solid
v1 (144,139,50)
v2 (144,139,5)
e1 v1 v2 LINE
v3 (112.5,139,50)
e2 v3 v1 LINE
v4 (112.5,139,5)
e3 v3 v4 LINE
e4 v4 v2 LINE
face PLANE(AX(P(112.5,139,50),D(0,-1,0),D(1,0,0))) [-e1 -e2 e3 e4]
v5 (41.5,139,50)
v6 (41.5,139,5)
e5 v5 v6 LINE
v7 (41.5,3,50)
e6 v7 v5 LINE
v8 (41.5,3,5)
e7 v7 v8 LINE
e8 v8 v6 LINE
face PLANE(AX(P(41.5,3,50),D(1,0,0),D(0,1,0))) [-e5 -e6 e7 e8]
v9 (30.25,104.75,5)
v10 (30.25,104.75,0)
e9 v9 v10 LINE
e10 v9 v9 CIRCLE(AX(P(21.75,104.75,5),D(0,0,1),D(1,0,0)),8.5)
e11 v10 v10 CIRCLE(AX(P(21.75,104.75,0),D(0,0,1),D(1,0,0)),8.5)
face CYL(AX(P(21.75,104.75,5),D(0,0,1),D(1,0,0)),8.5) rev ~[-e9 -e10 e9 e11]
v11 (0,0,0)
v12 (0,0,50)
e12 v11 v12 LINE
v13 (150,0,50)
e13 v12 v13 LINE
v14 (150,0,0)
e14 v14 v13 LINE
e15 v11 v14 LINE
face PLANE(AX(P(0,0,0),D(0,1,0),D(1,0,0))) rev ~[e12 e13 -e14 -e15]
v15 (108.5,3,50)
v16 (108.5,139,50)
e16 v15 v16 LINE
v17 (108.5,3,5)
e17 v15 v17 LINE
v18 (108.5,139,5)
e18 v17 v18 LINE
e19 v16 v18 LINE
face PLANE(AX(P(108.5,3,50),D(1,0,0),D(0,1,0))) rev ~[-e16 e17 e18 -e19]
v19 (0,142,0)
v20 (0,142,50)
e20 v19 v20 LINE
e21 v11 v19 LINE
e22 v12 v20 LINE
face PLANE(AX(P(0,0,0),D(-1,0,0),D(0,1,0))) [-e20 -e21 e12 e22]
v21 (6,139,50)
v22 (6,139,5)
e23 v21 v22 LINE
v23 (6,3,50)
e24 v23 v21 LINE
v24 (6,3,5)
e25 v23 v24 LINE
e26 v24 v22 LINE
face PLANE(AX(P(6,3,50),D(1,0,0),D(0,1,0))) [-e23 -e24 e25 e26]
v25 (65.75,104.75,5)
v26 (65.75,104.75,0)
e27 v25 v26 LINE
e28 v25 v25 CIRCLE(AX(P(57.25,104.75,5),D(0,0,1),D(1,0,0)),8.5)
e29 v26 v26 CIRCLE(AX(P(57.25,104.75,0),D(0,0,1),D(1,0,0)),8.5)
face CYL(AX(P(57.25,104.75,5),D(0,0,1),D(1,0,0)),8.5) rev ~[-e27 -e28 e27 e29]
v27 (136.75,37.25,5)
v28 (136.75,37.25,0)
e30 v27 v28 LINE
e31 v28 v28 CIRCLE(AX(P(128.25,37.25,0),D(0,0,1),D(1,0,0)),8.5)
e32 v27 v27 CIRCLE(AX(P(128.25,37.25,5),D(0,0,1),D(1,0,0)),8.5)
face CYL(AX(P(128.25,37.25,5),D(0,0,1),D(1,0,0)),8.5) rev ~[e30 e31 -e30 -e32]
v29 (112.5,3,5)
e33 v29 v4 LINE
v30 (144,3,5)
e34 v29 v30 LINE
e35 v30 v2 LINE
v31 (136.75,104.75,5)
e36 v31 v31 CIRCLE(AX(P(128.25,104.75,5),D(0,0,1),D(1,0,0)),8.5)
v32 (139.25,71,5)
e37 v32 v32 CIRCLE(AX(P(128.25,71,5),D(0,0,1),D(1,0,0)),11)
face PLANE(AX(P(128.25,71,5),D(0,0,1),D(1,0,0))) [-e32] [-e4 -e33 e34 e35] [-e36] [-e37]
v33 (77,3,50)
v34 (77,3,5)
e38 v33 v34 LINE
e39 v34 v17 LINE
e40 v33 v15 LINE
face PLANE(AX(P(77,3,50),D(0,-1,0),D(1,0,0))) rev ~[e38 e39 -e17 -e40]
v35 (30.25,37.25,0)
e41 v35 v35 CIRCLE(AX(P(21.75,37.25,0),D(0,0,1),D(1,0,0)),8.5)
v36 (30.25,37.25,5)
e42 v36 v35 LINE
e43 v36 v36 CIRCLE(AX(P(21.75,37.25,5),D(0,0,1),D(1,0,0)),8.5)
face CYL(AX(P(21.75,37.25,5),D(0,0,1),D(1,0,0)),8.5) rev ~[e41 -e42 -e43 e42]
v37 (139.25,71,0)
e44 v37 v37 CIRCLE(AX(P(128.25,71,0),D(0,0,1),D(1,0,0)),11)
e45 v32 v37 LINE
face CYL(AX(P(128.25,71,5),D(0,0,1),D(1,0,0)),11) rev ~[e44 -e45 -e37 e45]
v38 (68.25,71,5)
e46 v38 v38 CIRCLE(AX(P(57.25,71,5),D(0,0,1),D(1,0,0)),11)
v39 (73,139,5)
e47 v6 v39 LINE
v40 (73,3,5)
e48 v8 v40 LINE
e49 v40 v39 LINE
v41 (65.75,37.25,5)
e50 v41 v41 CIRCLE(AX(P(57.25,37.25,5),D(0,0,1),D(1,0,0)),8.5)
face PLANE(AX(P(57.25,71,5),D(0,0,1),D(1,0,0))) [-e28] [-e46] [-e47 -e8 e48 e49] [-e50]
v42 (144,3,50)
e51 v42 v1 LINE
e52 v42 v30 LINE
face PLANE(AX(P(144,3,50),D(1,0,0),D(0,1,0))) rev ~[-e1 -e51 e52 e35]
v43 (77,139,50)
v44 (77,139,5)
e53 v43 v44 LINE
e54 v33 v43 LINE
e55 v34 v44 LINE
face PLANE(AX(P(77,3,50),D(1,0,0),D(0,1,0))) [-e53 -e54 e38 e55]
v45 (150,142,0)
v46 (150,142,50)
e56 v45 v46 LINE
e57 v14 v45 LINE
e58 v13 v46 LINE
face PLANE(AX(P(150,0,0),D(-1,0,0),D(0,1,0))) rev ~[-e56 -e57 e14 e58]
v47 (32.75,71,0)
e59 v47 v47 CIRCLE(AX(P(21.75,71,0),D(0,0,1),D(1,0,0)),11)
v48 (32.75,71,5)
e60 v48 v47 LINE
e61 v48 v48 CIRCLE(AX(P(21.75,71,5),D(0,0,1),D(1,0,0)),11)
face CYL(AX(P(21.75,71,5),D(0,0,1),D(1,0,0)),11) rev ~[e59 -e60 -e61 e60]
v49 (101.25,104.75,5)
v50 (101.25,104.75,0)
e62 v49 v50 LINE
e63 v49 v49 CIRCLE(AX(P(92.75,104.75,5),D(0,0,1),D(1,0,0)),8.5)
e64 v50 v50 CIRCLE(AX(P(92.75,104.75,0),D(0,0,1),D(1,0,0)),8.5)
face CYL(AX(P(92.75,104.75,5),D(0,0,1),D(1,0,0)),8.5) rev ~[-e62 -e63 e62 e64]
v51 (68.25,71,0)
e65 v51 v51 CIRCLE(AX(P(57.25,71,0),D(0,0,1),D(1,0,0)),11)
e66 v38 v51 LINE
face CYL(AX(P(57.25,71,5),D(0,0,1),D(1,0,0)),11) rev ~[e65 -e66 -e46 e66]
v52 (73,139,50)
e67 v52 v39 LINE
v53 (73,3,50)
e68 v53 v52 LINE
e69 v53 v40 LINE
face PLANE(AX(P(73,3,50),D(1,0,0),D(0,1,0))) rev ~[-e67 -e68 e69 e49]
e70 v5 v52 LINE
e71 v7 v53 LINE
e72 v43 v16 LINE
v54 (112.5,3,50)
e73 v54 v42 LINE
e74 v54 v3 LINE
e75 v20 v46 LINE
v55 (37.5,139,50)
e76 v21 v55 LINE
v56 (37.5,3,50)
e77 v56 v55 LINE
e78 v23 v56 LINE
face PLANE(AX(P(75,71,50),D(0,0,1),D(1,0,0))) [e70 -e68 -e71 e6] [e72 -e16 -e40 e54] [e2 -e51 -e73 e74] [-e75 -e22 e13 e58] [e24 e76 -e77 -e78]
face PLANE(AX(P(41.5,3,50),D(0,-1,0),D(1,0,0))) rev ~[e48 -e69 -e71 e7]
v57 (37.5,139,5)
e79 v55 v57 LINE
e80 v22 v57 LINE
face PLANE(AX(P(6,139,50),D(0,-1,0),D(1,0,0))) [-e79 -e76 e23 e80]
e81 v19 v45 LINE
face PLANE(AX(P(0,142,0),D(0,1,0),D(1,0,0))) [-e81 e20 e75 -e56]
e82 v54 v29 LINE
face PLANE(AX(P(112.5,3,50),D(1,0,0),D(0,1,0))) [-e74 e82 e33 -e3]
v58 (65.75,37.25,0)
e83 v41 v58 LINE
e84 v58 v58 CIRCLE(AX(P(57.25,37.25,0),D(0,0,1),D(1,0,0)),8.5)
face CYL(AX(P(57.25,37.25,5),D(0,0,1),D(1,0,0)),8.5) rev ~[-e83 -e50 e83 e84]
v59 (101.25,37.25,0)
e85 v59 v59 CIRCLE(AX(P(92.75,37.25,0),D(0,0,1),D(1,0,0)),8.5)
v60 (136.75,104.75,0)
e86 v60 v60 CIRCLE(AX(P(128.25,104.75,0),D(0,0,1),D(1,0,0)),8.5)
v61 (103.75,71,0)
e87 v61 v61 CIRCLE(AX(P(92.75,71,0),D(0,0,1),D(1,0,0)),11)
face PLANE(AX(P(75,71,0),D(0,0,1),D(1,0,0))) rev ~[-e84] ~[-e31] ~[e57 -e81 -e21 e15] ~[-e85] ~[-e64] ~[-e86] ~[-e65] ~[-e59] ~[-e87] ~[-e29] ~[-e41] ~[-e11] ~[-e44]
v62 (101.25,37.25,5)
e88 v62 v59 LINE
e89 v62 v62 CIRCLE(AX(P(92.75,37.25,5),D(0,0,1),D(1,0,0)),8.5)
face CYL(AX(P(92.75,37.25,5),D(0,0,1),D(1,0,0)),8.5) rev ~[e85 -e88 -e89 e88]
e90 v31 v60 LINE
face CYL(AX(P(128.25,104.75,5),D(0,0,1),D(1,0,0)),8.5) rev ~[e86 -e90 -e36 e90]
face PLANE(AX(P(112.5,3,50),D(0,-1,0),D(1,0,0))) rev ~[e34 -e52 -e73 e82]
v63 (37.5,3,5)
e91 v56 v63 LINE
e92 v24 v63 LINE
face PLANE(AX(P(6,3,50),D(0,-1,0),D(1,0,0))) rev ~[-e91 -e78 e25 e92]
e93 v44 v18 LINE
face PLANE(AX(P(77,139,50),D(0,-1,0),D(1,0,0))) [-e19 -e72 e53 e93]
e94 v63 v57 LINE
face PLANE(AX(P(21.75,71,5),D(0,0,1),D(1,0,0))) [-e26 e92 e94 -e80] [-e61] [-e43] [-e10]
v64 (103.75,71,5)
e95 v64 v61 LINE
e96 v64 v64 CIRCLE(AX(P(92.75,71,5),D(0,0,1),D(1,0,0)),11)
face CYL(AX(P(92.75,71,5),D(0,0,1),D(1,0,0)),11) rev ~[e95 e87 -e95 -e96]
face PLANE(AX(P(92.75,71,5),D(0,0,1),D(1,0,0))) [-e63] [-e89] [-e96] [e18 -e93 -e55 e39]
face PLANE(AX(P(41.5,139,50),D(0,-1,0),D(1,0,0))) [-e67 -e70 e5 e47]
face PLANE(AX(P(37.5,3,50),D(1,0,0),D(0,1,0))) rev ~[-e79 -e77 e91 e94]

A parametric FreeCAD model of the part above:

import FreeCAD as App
import Part
import Sketcher

V = App.Vector


def add_polygon(sketch, points):
    """Adds a closed chain of lines whose ends are joined by coincident constraints."""
    first, n = sketch.GeometryCount, len(points)
    for a, b in zip(points, points[1:] + points[:1]):
        sketch.addGeometry(Part.LineSegment(App.Vector(*a, 0), App.Vector(*b, 0)), False)
    for i in range(n):
        sketch.addConstraint(Sketcher.Constraint("Coincident", first + i, 2, first + (i + 1) % n, 1))

doc = App.newDocument("Part")
body = doc.addObject("PartDesign::Body", "Body")

# Sketch on XY plane
sketch1 = body.newObject("Sketcher::SketchObject", "Sketch")
sketch1.AttachmentSupport = (doc.getObject("XY_Plane"), [""])
sketch1.MapMode = "FlatFace"
add_polygon(sketch1, [(0, 142), (0, 0), (150, 0), (150, 142)])  # lines 0-3
sketch1.addConstraint(Sketcher.Constraint("Vertical", 0))
sketch1.addConstraint(Sketcher.Constraint("Horizontal", 1))
sketch1.addConstraint(Sketcher.Constraint("Vertical", 2))
sketch1.addConstraint(Sketcher.Constraint("Horizontal", 3))
sketch1.addConstraint(Sketcher.Constraint("Coincident", 0, 2, -1, 1))
sketch1.addConstraint(Sketcher.Constraint("DistanceX", 1, 1, 1, 2, 150.0))
sketch1.addConstraint(Sketcher.Constraint("DistanceY", 0, 2, 0, 1, 142.0))
pad1 = body.newObject("PartDesign::Pad", "Pad")
pad1.Profile = sketch1
pad1.Length = 50

# Sketch on XY plane
sketch2 = body.newObject("Sketcher::SketchObject", "Sketch001")
sketch2.AttachmentSupport = (doc.getObject("XY_Plane"), [""])
sketch2.MapMode = "FlatFace"
sketch2.AttachmentOffset = App.Placement(V(0, 0, 50), App.Rotation())
add_polygon(sketch2, [(6, 139), (6, 3), (38, 3), (38, 139)])  # lines 0-3
add_polygon(sketch2, [(42, 139), (42, 3), (73, 3), (73, 139)])  # lines 4-7
add_polygon(sketch2, [(77, 139), (77, 3), (108, 3), (108, 139)])  # lines 8-11
add_polygon(sketch2, [(112, 139), (112, 3), (144, 3), (144, 139)])  # lines 12-15
sketch2.addConstraint(Sketcher.Constraint("Vertical", 0))
sketch2.addConstraint(Sketcher.Constraint("Horizontal", 1))
sketch2.addConstraint(Sketcher.Constraint("Vertical", 2))
sketch2.addConstraint(Sketcher.Constraint("Horizontal", 3))
sketch2.addConstraint(Sketcher.Constraint("Vertical", 4))
sketch2.addConstraint(Sketcher.Constraint("Horizontal", 5))
sketch2.addConstraint(Sketcher.Constraint("Vertical", 6))
sketch2.addConstraint(Sketcher.Constraint("Horizontal", 7))
sketch2.addConstraint(Sketcher.Constraint("Vertical", 8))
sketch2.addConstraint(Sketcher.Constraint("Horizontal", 9))
sketch2.addConstraint(Sketcher.Constraint("Vertical", 10))
sketch2.addConstraint(Sketcher.Constraint("Horizontal", 11))
sketch2.addConstraint(Sketcher.Constraint("Vertical", 12))
sketch2.addConstraint(Sketcher.Constraint("Horizontal", 13))
sketch2.addConstraint(Sketcher.Constraint("Vertical", 14))
sketch2.addConstraint(Sketcher.Constraint("Horizontal", 15))
sketch2.addConstraint(Sketcher.Constraint("Horizontal", 1, 2, 4, 2))
sketch2.addConstraint(Sketcher.Constraint("Horizontal", 3, 2, 6, 2))
sketch2.addConstraint(Sketcher.Constraint("Horizontal", 5, 2, 8, 2))
sketch2.addConstraint(Sketcher.Constraint("Horizontal", 7, 2, 10, 2))
sketch2.addConstraint(Sketcher.Constraint("Horizontal", 9, 2, 12, 2))
sketch2.addConstraint(Sketcher.Constraint("Horizontal", 11, 2, 14, 2))
sketch2.addConstraint(Sketcher.Constraint("Equal", 3, 5))
sketch2.addConstraint(Sketcher.Constraint("Equal", 7, 9))
sketch2.addConstraint(Sketcher.Constraint("Equal", 11, 13))
sketch2.addConstraint(Sketcher.Constraint("DistanceY", 0, 2, 0, 1, 136.0))
sketch2.addConstraint(Sketcher.Constraint("DistanceX", 1, 1, 1, 2, 31.5))
sketch2.addConstraint(Sketcher.Constraint("DistanceX", -1, 1, 0, 2, 6.0))
sketch2.addConstraint(Sketcher.Constraint("DistanceY", -1, 1, 0, 2, 3.0))
sketch2.addConstraint(Sketcher.Constraint("DistanceX", -1, 1, 5, 2, 73.0))
sketch2.addConstraint(Sketcher.Constraint("DistanceX", -1, 1, 8, 2, 77.0))
sketch2.addConstraint(Sketcher.Constraint("DistanceX", -1, 1, 13, 2, 144.0))
pocket1 = body.newObject("PartDesign::Pocket", "Pocket")
pocket1.Profile = sketch2
pocket1.Length = 45

# Sketch on XY plane
sketch3 = body.newObject("Sketcher::SketchObject", "Sketch002")
sketch3.AttachmentSupport = (doc.getObject("XY_Plane"), [""])
sketch3.MapMode = "FlatFace"
sketch3.AttachmentOffset = App.Placement(V(0, 0, 5), App.Rotation())
sketch3.addGeometry(Part.Circle(V(22, 37, 0), V(0, 0, 1), 8), False)
sketch3.addGeometry(Part.Circle(V(22, 71, 0), V(0, 0, 1), 11), False)
sketch3.addGeometry(Part.Circle(V(22, 105, 0), V(0, 0, 1), 8), False)
sketch3.addGeometry(Part.Circle(V(57, 37, 0), V(0, 0, 1), 8), False)
sketch3.addGeometry(Part.Circle(V(57, 71, 0), V(0, 0, 1), 11), False)
sketch3.addGeometry(Part.Circle(V(57, 105, 0), V(0, 0, 1), 8), False)
sketch3.addGeometry(Part.Circle(V(93, 37, 0), V(0, 0, 1), 8), False)
sketch3.addGeometry(Part.Circle(V(93, 71, 0), V(0, 0, 1), 11), False)
sketch3.addGeometry(Part.Circle(V(93, 105, 0), V(0, 0, 1), 8), False)
sketch3.addGeometry(Part.Circle(V(128, 37, 0), V(0, 0, 1), 8), False)
sketch3.addGeometry(Part.Circle(V(128, 71, 0), V(0, 0, 1), 11), False)
sketch3.addGeometry(Part.Circle(V(128, 105, 0), V(0, 0, 1), 8), False)
sketch3.addConstraint(Sketcher.Constraint("Equal", 0, 2))
sketch3.addConstraint(Sketcher.Constraint("Equal", 2, 3))
sketch3.addConstraint(Sketcher.Constraint("Equal", 1, 4))
sketch3.addConstraint(Sketcher.Constraint("Equal", 3, 5))
sketch3.addConstraint(Sketcher.Constraint("Equal", 5, 6))
sketch3.addConstraint(Sketcher.Constraint("Equal", 4, 7))
sketch3.addConstraint(Sketcher.Constraint("Equal", 6, 8))
sketch3.addConstraint(Sketcher.Constraint("Equal", 8, 9))
sketch3.addConstraint(Sketcher.Constraint("Equal", 7, 10))
sketch3.addConstraint(Sketcher.Constraint("Equal", 9, 11))
sketch3.addConstraint(Sketcher.Constraint("Horizontal", 0, 3, 3, 3))
sketch3.addConstraint(Sketcher.Constraint("Horizontal", 1, 3, 4, 3))
sketch3.addConstraint(Sketcher.Constraint("Horizontal", 2, 3, 5, 3))
sketch3.addConstraint(Sketcher.Constraint("Horizontal", 3, 3, 6, 3))
sketch3.addConstraint(Sketcher.Constraint("Horizontal", 4, 3, 7, 3))
sketch3.addConstraint(Sketcher.Constraint("Horizontal", 5, 3, 8, 3))
sketch3.addConstraint(Sketcher.Constraint("Horizontal", 6, 3, 9, 3))
sketch3.addConstraint(Sketcher.Constraint("Horizontal", 7, 3, 10, 3))
sketch3.addConstraint(Sketcher.Constraint("Horizontal", 8, 3, 11, 3))
sketch3.addConstraint(Sketcher.Constraint("Vertical", 0, 3, 1, 3))
sketch3.addConstraint(Sketcher.Constraint("Vertical", 1, 3, 2, 3))
sketch3.addConstraint(Sketcher.Constraint("Vertical", 3, 3, 4, 3))
sketch3.addConstraint(Sketcher.Constraint("Vertical", 4, 3, 5, 3))
sketch3.addConstraint(Sketcher.Constraint("Vertical", 6, 3, 7, 3))
sketch3.addConstraint(Sketcher.Constraint("Vertical", 7, 3, 8, 3))
sketch3.addConstraint(Sketcher.Constraint("Vertical", 9, 3, 10, 3))
sketch3.addConstraint(Sketcher.Constraint("Vertical", 10, 3, 11, 3))
sketch3.addConstraint(Sketcher.Constraint("Diameter", 0, 17.0))
sketch3.addConstraint(Sketcher.Constraint("Diameter", 1, 22.0))
sketch3.addConstraint(Sketcher.Constraint("DistanceY", -1, 1, 1, 3, 71.0))
sketch3.addConstraint(Sketcher.Constraint("DistanceX", 0, 3, 6, 3, 71.0))
sketch3.addConstraint(Sketcher.Constraint("DistanceX", 3, 3, 9, 3, 71.0))
sketch3.addConstraint(Sketcher.Constraint("DistanceY", 0, 3, 2, 3, 67.5))
sketch3.addConstraint(Sketcher.Constraint("DistanceX", 0, 3, 3, 3, 35.5))
sketch3.addConstraint(Sketcher.Constraint("DistanceX", -1, 1, 0, 3, 21.75))
sketch3.addConstraint(Sketcher.Constraint("DistanceY", -1, 1, 0, 3, 37.25))
pocket2 = body.newObject("PartDesign::Pocket", "Pocket001")
pocket2.Profile = sketch3
pocket2.Length = 5

doc.recompute()
